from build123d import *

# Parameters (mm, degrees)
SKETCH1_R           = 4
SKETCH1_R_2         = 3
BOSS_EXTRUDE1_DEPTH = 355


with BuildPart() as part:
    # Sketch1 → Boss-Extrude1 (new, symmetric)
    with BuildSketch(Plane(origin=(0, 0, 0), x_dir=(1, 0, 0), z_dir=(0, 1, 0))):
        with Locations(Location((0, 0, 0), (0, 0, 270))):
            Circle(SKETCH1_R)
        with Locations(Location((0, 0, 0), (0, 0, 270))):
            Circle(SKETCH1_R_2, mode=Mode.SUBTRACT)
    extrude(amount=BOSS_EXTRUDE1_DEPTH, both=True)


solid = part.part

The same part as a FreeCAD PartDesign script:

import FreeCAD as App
import Part
import Sketcher

V = App.Vector
Q = App.Units.Quantity

doc = App.newDocument("Part")
body = doc.addObject("PartDesign::Body", "Body")

# Sketch on XZ plane
sketch1 = body.newObject("Sketcher::SketchObject", "Sketch")
sketch1.AttachmentSupport = (doc.getObject("XZ_Plane"), [""])
sketch1.MapMode = "FlatFace"
sketch1.addGeometry(Part.Circle(V(0, 0, 0), V(0, 0, 1), 4), False)
sketch1.addGeometry(Part.Circle(V(0, 0, 0), V(0, 0, 1), 3), False)
sketch1.addConstraint(Sketcher.Constraint("Coincident", 0, 3, -1, 1))
sketch1.addConstraint(Sketcher.Constraint("Coincident", 1, 3, -1, 1))
sketch1.addConstraint(Sketcher.Constraint("Diameter", 0, Q("8 mm")))
sketch1.addConstraint(Sketcher.Constraint("Diameter", 1, Q("6 mm")))
pad1 = body.newObject("PartDesign::Pad", "Pad")
pad1.Profile = sketch1
pad1.Length = 710
pad1.Midplane = True

doc.recompute()
